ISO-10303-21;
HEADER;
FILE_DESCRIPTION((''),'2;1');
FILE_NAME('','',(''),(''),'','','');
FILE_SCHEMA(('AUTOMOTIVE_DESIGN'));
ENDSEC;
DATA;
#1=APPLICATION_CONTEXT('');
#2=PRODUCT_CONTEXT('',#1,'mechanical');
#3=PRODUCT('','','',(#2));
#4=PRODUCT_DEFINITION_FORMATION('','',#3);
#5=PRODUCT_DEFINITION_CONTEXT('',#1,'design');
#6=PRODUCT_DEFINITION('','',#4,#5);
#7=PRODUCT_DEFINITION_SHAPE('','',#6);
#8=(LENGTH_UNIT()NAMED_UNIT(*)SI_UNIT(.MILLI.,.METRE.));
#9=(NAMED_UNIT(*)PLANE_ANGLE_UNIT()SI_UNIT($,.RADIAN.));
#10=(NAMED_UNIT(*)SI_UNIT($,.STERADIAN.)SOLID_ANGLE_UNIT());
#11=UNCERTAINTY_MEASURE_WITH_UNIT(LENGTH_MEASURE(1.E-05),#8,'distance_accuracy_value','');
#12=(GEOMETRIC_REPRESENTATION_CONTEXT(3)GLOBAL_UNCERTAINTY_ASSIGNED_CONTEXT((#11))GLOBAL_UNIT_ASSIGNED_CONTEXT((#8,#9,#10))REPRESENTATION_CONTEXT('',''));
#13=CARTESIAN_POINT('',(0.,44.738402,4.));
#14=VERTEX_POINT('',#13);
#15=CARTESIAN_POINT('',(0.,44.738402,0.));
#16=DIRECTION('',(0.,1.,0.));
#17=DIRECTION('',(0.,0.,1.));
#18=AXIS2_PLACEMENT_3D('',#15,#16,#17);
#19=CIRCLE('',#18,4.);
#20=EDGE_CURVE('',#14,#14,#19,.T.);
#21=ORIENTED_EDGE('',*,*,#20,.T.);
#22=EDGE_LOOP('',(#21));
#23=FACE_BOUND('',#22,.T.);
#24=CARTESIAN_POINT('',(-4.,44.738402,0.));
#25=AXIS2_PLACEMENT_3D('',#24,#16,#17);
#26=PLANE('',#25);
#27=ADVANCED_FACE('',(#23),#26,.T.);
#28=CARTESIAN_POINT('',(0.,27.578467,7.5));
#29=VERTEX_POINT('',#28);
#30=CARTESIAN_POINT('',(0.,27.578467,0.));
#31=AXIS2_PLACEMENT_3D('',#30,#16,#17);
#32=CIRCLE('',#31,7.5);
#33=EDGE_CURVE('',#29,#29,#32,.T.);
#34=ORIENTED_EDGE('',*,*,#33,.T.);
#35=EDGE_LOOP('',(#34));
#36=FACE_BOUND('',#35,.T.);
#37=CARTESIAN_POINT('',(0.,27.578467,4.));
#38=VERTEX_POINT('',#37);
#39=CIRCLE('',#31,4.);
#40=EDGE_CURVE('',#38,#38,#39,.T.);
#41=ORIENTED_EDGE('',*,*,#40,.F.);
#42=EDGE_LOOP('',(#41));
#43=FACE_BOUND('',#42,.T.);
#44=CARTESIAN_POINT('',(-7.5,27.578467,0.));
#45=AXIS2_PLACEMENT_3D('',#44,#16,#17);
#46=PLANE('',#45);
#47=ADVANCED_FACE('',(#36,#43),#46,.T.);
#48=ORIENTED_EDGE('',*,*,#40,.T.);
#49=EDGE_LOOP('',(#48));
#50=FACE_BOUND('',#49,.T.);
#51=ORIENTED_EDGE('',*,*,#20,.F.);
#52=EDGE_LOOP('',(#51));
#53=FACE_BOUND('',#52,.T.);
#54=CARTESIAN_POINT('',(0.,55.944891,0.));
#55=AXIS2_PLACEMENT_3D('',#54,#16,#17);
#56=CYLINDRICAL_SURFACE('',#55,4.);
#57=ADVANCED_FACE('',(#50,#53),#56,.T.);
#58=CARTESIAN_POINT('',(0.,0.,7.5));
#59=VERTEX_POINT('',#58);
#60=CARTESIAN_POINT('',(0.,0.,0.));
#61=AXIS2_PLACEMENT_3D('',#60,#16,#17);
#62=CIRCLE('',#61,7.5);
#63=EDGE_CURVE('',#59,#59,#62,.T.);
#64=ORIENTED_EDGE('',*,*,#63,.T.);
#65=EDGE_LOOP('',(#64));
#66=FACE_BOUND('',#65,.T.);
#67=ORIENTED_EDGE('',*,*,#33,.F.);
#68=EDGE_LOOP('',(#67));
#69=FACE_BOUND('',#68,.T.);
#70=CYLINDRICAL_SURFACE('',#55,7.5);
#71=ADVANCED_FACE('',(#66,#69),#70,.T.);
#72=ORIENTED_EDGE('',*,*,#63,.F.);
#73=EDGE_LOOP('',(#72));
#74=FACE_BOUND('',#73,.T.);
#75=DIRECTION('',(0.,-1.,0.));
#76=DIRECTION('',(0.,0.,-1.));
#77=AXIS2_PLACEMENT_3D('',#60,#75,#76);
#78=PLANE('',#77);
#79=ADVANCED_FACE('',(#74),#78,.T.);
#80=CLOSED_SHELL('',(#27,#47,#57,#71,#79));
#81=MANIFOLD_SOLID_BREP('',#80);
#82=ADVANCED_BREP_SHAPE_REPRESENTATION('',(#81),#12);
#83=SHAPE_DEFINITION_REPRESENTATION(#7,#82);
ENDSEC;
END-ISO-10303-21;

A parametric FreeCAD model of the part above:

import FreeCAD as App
import Part
import Sketcher
Q = App.Units.Quantity


def add_polygon(sketch, points):
    """Adds a closed chain of lines whose ends are joined by coincident constraints."""
    first, n = sketch.GeometryCount, len(points)
    for a, b in zip(points, points[1:] + points[:1]):
        sketch.addGeometry(Part.LineSegment(App.Vector(*a, 0), App.Vector(*b, 0)), False)
    for i in range(n):
        sketch.addConstraint(Sketcher.Constraint("Coincident", first + i, 2, first + (i + 1) % n, 1))

doc = App.newDocument("Part")
body = doc.addObject("PartDesign::Body", "Body")

sketch1 = body.newObject("Sketcher::SketchObject", "Sketch")
sketch1.AttachmentSupport = (doc.getObject("XY_Plane"), [""])
sketch1.MapMode = "FlatFace"
add_polygon(sketch1, [(-7.5, 0), (0, 0), (0, 44.738402), (-4, 44.738402), (-4, 27.578467), (-7.5, 27.578467)])
sketch1.addConstraint(Sketcher.Constraint("Horizontal", 0))
sketch1.addConstraint(Sketcher.Constraint("Vertical", 1))
sketch1.addConstraint(Sketcher.Constraint("Horizontal", 2))
sketch1.addConstraint(Sketcher.Constraint("Vertical", 3))
sketch1.addConstraint(Sketcher.Constraint("Horizontal", 4))
sketch1.addConstraint(Sketcher.Constraint("Vertical", 5))
sketch1.addConstraint(Sketcher.Constraint("Coincident", 0, 2, -1, 1))
sketch1.addConstraint(Sketcher.Constraint("DistanceX", 2, 2, 2, 1, Q("4 mm")))
sketch1.addConstraint(Sketcher.Constraint("DistanceX", 0, 1, 0, 2, Q("7.5 mm")))
sketch1.addConstraint(Sketcher.Constraint("DistanceY", 1, 1, 1, 2, Q("44.738402 mm")))
sketch1.addConstraint(Sketcher.Constraint("DistanceY", 3, 2, 3, 1, Q("17.159935 mm")))
revolution = body.newObject("PartDesign::Revolution", "Revolution")
revolution.Profile = sketch1
revolution.ReferenceAxis = (sketch1, ["V_Axis"])
revolution.Angle = 360

doc.recompute()
